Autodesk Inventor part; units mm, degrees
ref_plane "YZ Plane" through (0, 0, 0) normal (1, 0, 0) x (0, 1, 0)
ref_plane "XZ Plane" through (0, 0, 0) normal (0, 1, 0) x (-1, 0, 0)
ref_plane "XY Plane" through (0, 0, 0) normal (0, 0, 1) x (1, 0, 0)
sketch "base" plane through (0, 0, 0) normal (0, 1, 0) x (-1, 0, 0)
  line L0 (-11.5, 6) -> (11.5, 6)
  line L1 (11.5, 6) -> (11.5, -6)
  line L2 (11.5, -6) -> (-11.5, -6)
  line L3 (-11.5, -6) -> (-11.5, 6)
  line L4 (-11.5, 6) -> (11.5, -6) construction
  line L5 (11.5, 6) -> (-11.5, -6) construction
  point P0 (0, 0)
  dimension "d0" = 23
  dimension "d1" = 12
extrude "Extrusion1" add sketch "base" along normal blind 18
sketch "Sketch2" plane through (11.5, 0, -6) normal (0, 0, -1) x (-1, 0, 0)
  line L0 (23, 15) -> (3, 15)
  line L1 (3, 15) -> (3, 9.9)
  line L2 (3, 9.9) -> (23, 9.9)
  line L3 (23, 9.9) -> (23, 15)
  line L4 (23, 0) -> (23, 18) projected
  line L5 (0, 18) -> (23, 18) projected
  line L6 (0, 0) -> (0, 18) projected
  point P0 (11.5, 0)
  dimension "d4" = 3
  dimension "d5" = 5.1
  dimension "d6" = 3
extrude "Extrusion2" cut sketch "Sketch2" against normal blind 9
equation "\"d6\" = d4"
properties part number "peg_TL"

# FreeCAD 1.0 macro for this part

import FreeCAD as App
import Part
import Sketcher

V = App.Vector

doc = App.newDocument("Part")
body = doc.addObject("PartDesign::Body", "Body")

# Sketch on XZ plane
sketch1 = body.newObject("Sketcher::SketchObject", "Sketch")
sketch1.AttachmentSupport = (doc.getObject("XZ_Plane"), [""])
sketch1.MapMode = "FlatFace"
sketch1.addGeometry(Part.LineSegment(V(-12, 6, 0), V(12, 6, 0)), False)
sketch1.addGeometry(Part.LineSegment(V(12, 6, 0), V(12, -6, 0)), False)
sketch1.addGeometry(Part.LineSegment(V(12, -6, 0), V(-12, -6, 0)), False)
sketch1.addGeometry(Part.LineSegment(V(-12, -6, 0), V(-12, 6, 0)), False)
sketch1.addConstraint(Sketcher.Constraint("Coincident", 0, 2, 1, 1))
sketch1.addConstraint(Sketcher.Constraint("Coincident", 1, 2, 2, 1))
sketch1.addConstraint(Sketcher.Constraint("Coincident", 2, 2, 3, 1))
sketch1.addConstraint(Sketcher.Constraint("Coincident", 3, 2, 0, 1))
sketch1.addConstraint(Sketcher.Constraint("Horizontal", 0))
sketch1.addConstraint(Sketcher.Constraint("Vertical", 1))
sketch1.addConstraint(Sketcher.Constraint("Horizontal", 2))
sketch1.addConstraint(Sketcher.Constraint("Vertical", 3))
sketch1.addConstraint(Sketcher.Constraint("Symmetric", 0, 2, 2, 2, -1, 1))
sketch1.addConstraint(Sketcher.Constraint("DistanceX", 0, 1, 0, 2, 23.0))
sketch1.addConstraint(Sketcher.Constraint("DistanceY", 1, 2, 1, 1, 12.0))
pad1 = body.newObject("PartDesign::Pad", "Pad")
pad1.Profile = sketch1
pad1.Length = 18
pad1.Reversed = True

# Sketch on XY plane
sketch2 = body.newObject("Sketcher::SketchObject", "Sketch001")
sketch2.AttachmentSupport = (doc.getObject("XY_Plane"), [""])
sketch2.MapMode = "FlatFace"
sketch2.AttachmentOffset = App.Placement(V(0, 0, -6), App.Rotation())
sketch2.addGeometry(Part.LineSegment(V(-12, 10, 0), V(-12, 15, 0)), False)
sketch2.addGeometry(Part.LineSegment(V(-12, 15, 0), V(8, 15, 0)), False)
sketch2.addGeometry(Part.LineSegment(V(8, 15, 0), V(8, 10, 0)), False)
sketch2.addGeometry(Part.LineSegment(V(8, 10, 0), V(-12, 10, 0)), False)
sketch2.addConstraint(Sketcher.Constraint("Coincident", 0, 2, 1, 1))
sketch2.addConstraint(Sketcher.Constraint("Coincident", 1, 2, 2, 1))
sketch2.addConstraint(Sketcher.Constraint("Coincident", 2, 2, 3, 1))
sketch2.addConstraint(Sketcher.Constraint("Coincident", 3, 2, 0, 1))
sketch2.addConstraint(Sketcher.Constraint("Vertical", 0))
sketch2.addConstraint(Sketcher.Constraint("Horizontal", 1))
sketch2.addConstraint(Sketcher.Constraint("Vertical", 2))
sketch2.addConstraint(Sketcher.Constraint("Horizontal", 3))
sketch2.addConstraint(Sketcher.Constraint("DistanceY", 0, 1, 0, 2, 5.1))
sketch2.addConstraint(Sketcher.Constraint("DistanceX", 1, 1, 1, 2, 20.0))
sketch2.addConstraint(Sketcher.Constraint("DistanceY", -1, 1, 0, 2, 15.0))
sketch2.addConstraint(Sketcher.Constraint("DistanceX", 0, 2, -1, 1, 11.5))
pocket1 = body.newObject("PartDesign::Pocket", "Pocket")
pocket1.Profile = sketch2
pocket1.Length = 9
pocket1.Reversed = True

doc.recompute()
